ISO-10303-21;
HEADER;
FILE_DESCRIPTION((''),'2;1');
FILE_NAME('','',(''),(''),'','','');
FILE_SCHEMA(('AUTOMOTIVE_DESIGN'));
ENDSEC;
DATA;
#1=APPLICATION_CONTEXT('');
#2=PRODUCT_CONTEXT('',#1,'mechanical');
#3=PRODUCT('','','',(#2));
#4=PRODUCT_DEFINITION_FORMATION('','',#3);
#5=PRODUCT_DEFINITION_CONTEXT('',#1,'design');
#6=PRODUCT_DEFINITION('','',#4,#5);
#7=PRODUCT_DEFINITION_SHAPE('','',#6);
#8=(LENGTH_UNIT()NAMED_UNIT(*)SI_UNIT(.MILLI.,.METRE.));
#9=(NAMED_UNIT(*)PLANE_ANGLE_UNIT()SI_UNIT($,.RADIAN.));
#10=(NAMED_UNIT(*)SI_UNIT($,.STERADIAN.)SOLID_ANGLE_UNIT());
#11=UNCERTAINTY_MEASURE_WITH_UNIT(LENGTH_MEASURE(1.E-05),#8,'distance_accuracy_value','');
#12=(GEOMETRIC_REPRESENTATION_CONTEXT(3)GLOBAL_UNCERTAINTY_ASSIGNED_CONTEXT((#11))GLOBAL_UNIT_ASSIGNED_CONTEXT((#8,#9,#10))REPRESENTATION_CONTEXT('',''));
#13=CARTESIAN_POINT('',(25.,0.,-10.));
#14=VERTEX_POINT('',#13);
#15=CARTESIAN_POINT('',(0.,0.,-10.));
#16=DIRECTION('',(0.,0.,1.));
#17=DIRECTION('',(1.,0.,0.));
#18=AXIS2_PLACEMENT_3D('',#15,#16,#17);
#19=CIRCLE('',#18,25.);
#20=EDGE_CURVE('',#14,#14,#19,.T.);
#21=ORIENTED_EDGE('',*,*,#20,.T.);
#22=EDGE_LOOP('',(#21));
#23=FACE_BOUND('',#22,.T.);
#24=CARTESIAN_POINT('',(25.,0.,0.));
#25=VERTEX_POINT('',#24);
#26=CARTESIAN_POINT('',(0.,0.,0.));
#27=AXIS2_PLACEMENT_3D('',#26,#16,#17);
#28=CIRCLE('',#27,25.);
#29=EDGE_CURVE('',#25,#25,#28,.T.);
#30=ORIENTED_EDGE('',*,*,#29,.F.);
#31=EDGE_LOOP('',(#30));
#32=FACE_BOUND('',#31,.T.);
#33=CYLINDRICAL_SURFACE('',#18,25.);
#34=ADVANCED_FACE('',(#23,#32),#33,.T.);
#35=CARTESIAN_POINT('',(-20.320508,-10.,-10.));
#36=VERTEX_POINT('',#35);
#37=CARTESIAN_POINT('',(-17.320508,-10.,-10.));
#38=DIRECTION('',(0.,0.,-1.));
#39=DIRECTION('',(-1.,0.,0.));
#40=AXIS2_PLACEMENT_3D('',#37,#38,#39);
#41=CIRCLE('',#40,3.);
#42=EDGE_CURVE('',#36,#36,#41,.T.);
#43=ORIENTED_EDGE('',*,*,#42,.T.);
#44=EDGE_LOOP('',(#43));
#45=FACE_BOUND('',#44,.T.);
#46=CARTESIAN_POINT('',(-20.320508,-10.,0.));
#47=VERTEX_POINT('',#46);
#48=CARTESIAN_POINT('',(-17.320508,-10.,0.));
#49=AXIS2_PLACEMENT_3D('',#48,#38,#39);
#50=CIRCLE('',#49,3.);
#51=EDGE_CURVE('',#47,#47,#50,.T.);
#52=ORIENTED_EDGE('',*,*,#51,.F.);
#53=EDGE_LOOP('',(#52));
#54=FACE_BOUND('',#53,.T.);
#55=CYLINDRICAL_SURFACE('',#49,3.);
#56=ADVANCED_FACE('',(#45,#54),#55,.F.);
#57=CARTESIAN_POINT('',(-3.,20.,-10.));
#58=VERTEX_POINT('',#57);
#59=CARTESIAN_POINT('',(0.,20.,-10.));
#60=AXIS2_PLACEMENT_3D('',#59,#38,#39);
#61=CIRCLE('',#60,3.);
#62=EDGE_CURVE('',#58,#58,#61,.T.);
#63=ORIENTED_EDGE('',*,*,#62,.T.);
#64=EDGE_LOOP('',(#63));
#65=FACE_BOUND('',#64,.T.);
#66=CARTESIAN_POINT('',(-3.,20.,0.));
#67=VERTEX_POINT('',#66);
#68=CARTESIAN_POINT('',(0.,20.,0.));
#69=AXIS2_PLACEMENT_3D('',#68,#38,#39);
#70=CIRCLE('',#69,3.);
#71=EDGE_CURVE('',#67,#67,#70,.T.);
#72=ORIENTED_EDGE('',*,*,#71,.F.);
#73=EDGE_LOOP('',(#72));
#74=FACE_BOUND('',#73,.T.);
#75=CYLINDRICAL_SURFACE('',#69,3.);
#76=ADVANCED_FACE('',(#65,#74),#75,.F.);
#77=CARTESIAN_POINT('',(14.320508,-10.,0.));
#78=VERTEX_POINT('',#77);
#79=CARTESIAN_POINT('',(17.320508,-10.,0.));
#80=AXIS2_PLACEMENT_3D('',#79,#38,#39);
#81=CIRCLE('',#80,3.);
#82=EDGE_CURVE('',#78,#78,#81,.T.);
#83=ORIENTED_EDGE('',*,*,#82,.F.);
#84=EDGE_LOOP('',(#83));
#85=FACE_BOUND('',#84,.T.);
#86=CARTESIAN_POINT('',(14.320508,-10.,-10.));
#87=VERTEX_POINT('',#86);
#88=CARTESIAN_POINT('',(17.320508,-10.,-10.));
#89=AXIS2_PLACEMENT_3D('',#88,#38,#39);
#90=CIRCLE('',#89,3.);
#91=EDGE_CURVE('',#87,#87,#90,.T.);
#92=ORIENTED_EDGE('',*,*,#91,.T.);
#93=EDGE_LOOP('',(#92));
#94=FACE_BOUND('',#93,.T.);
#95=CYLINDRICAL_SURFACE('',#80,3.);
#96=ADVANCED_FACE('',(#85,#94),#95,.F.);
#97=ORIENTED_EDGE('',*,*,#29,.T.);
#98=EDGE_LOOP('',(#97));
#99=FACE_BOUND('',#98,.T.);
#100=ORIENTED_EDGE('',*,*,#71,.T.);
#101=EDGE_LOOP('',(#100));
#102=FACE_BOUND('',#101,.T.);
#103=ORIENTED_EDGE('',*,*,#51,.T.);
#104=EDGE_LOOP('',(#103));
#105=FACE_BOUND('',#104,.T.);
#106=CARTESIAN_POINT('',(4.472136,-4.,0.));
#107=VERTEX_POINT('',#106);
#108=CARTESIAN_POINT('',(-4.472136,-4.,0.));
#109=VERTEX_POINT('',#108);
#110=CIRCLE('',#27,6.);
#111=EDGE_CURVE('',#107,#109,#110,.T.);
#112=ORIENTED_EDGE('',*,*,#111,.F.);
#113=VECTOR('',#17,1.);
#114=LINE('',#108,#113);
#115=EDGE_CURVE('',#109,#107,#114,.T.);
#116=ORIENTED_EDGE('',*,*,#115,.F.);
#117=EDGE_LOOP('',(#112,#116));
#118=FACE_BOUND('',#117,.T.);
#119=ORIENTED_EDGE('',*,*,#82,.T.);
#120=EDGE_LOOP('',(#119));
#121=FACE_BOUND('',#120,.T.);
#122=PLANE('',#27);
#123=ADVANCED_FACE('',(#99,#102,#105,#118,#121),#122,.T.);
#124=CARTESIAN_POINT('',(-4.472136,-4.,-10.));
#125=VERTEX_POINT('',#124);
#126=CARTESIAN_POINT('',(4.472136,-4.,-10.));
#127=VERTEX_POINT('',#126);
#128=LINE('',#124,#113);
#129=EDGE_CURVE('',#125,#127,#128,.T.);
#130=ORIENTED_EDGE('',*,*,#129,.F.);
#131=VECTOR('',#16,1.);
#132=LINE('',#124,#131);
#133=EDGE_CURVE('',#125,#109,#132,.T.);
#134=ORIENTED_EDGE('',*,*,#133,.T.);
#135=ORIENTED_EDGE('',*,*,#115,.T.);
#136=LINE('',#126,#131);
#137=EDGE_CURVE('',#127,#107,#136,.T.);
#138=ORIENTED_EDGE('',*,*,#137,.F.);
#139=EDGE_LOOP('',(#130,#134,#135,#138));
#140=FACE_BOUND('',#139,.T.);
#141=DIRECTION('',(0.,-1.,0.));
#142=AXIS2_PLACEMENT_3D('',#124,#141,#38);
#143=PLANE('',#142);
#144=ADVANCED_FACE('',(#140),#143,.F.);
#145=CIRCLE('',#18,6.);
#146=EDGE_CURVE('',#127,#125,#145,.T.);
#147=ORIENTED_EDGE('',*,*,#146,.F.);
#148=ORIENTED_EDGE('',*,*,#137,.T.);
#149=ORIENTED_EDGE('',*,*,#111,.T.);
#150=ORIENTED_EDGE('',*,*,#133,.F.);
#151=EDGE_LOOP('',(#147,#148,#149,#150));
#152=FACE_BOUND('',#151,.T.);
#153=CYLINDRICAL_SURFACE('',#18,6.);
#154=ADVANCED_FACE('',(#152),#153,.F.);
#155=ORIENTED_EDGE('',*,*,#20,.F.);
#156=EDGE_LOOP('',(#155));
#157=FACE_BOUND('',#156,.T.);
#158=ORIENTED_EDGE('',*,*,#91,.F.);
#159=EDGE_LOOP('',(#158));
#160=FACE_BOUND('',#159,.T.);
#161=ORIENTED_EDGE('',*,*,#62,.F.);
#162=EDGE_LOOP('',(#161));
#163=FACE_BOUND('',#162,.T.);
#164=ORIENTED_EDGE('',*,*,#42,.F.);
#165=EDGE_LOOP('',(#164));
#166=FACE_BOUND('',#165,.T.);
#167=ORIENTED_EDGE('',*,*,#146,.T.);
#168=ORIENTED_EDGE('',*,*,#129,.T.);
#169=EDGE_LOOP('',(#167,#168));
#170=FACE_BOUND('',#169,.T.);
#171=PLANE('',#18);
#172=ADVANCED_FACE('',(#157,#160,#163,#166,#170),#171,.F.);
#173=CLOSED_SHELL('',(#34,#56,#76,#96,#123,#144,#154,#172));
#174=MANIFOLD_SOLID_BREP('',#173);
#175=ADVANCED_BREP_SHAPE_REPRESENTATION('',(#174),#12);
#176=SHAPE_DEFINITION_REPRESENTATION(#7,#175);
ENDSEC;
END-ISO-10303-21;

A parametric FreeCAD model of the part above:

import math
import FreeCAD as App
import Part
import Sketcher

V = App.Vector
Q = App.Units.Quantity

doc = App.newDocument("Part")
body = doc.addObject("PartDesign::Body", "Body")

sketch1 = body.newObject("Sketcher::SketchObject", "Sketch")
sketch1.AttachmentSupport = (doc.getObject("XY_Plane"), [""])
sketch1.MapMode = "FlatFace"
sketch1.addGeometry([
    Part.Circle(V(0, 0, 0), V(0, 0, 1), 25),
    Part.LineSegment(V(4, -4, 0), V(-4, -4, 0)),
    Part.ArcOfCircle(Part.Circle(V(0, 0, 0), V(0, 0, 1), 6), math.radians(-42), math.radians(222)),
], False)
sketch1.addConstraint([
    Sketcher.Constraint("Coincident", 1, 1, 2, 1),
    Sketcher.Constraint("Coincident", 2, 2, 1, 2),
    Sketcher.Constraint("Horizontal", 1),
    Sketcher.Constraint("Coincident", 0, 3, -1, 1),
    Sketcher.Constraint("Coincident", 2, 3, -1, 1),
    Sketcher.Constraint("Diameter", 0, Q("50 mm")),
    Sketcher.Constraint("Radius", 2, Q("6 mm")),
    Sketcher.Constraint("DistanceY", 1, 1, -1, 1, Q("4 mm")),
])
pad1 = body.newObject("PartDesign::Pad", "Pad")
pad1.Profile = sketch1
pad1.Length = 10
pad1.Reversed = True

sketch2 = body.newObject("Sketcher::SketchObject", "Sketch001")
sketch2.AttachmentSupport = (doc.getObject("XY_Plane"), [""])
sketch2.MapMode = "FlatFace"
sketch2.AttachmentOffset = App.Placement(V(0, 0, -10), App.Rotation())
sketch2.addGeometry([
    Part.Circle(V(0, 20, 0), V(0, 0, 1), 3),
    Part.Circle(V(-17.3, -10, 0), V(0, 0, 1), 3),
    Part.Circle(V(17.3, -10, 0), V(0, 0, 1), 3),
], False)
sketch2.addConstraint([
    Sketcher.Constraint("Equal", 0, 1),
    Sketcher.Constraint("Equal", 1, 2),
    Sketcher.Constraint("Symmetric", 1, 3, 2, 3, -2),
    Sketcher.Constraint("PointOnObject", 0, 3, -2),
    Sketcher.Constraint("Diameter", 0, Q("6 mm")),
    Sketcher.Constraint("DistanceY", -1, 1, 0, 3, Q("20 mm")),
    Sketcher.Constraint("DistanceY", 1, 3, -1, 1, Q("10 mm")),
    Sketcher.Constraint("DistanceX", 1, 3, -1, 1, Q("17.320508 mm")),
])
pocket1 = body.newObject("PartDesign::Pocket", "Pocket")
pocket1.Profile = sketch2
pocket1.Type = "ThroughAll"
pocket1.Reversed = True

doc.recompute()
